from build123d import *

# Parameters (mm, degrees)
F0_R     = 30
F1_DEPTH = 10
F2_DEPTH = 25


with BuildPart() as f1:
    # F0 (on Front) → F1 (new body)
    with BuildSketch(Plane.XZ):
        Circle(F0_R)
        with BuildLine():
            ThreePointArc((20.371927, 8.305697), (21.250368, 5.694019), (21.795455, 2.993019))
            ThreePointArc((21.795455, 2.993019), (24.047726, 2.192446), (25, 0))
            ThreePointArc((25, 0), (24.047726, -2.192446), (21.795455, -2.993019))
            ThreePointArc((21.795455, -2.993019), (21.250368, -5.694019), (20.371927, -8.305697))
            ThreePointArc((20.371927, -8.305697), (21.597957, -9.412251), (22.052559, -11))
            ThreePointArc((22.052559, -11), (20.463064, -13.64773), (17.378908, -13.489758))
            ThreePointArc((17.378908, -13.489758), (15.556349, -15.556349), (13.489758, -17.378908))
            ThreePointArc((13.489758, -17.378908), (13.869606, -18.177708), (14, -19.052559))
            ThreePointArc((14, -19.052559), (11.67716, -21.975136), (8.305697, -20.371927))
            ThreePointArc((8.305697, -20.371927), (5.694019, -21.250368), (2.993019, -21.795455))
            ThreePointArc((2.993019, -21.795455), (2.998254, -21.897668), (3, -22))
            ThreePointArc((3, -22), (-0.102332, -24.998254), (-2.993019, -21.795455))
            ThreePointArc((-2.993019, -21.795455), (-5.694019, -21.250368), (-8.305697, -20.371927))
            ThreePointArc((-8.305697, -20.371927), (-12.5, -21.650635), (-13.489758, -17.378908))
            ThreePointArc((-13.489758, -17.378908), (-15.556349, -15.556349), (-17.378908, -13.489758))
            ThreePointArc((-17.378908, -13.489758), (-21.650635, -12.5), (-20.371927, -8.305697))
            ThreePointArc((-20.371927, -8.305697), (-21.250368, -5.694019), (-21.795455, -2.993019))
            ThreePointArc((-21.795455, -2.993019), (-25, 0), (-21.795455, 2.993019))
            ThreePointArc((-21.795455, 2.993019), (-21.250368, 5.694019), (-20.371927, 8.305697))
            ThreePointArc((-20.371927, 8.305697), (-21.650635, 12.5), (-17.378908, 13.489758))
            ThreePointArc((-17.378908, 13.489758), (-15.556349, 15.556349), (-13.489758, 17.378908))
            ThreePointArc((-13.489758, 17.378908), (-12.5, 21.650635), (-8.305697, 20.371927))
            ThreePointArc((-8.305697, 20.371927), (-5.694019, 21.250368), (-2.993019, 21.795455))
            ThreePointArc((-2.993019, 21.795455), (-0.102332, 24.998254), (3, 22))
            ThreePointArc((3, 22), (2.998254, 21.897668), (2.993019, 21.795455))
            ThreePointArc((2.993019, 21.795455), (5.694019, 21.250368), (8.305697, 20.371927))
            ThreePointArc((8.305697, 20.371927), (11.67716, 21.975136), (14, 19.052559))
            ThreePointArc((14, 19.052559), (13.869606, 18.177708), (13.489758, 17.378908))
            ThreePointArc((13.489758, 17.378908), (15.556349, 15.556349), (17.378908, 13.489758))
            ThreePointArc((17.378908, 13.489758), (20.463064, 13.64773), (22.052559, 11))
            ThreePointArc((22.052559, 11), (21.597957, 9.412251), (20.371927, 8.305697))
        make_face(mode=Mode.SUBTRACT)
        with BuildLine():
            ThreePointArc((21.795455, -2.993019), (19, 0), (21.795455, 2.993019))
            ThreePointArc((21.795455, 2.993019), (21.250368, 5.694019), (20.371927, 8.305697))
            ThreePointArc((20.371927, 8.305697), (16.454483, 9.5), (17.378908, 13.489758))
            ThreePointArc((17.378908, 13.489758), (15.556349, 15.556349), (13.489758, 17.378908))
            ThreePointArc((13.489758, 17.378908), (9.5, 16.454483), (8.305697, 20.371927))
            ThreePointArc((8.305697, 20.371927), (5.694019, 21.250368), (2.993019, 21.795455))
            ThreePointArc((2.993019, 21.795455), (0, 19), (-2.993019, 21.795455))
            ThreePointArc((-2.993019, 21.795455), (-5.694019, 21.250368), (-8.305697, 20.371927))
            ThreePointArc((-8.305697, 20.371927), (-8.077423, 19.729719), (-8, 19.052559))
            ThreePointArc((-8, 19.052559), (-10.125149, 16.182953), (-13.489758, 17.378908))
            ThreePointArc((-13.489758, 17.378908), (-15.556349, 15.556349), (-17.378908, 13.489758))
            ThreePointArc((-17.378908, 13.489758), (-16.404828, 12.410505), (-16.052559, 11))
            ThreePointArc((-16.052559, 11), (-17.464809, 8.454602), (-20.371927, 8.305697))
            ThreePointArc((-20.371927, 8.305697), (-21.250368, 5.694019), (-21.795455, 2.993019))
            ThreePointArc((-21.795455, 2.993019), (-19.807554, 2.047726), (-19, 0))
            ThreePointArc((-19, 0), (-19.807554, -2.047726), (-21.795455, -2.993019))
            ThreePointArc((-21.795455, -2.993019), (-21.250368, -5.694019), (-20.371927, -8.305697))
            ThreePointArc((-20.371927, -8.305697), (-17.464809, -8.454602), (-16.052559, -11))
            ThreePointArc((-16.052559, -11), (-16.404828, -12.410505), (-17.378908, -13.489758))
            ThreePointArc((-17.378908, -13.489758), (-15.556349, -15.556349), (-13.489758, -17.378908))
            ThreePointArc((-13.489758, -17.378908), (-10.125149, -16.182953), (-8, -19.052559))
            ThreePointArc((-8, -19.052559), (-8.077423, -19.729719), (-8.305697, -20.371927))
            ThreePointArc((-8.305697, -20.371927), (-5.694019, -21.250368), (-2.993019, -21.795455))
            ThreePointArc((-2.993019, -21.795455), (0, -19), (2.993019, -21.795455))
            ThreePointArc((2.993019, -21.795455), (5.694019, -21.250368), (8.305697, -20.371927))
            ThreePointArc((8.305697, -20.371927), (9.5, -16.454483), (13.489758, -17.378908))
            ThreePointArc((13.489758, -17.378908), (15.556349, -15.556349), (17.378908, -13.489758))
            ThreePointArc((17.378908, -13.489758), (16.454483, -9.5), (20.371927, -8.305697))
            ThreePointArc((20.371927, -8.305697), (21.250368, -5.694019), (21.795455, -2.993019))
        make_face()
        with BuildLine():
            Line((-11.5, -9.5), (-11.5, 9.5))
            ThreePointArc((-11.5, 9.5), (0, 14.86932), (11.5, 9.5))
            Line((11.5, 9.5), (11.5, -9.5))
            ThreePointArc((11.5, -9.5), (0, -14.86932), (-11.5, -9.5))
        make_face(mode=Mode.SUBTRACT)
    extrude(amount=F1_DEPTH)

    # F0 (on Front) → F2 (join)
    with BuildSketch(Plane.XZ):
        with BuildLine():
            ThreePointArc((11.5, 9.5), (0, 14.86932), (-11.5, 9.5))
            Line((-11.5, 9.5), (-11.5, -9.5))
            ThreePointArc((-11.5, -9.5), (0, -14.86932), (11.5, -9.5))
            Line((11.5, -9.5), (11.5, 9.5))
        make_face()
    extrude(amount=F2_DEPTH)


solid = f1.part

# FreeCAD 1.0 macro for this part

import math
import FreeCAD as App
import Part
import Sketcher

doc = App.newDocument("Part")
body = doc.addObject("PartDesign::Body", "Body")

sketch1 = body.newObject("Sketcher::SketchObject", "Sketch")
sketch1.AttachmentSupport = (doc.getObject("XZ_Plane"), [""])
sketch1.MapMode = "FlatFace"
sketch1.addGeometry([
    Part.Circle(App.Vector(0, 0, 0), App.Vector(0, 0, 1), 30),
    Part.ArcOfCircle(Part.Circle(App.Vector(-11, -19.05, 0), App.Vector(0, 0, 1), 3), math.radians(146), math.radians(334)),
    Part.ArcOfCircle(Part.Circle(App.Vector(-11, -19.05, 0), App.Vector(0, 0, 1), 3), math.radians(0), math.radians(146)),
    Part.ArcOfCircle(Part.Circle(App.Vector(-11, -19.05, 0), App.Vector(0, 0, 1), 3), math.radians(-26), math.radians(0)),
    Part.ArcOfCircle(Part.Circle(App.Vector(0, -22, 0), App.Vector(0, 0, 1), 3), math.radians(176), math.radians(360)),
    Part.ArcOfCircle(Part.Circle(App.Vector(0, -22, 0), App.Vector(0, 0, 1), 3), math.radians(4), math.radians(176)),
    Part.ArcOfCircle(Part.Circle(App.Vector(0, -22, 0), App.Vector(0, 0, 1), 3), math.radians(0), math.radians(3.91)),
    Part.ArcOfCircle(Part.Circle(App.Vector(-19.05, -11, 0), App.Vector(0, 0, 1), 3), math.radians(116), math.radians(304)),
    Part.ArcOfCircle(Part.Circle(App.Vector(-19.05, -11, 0), App.Vector(0, 0, 1), 3), math.radians(0), math.radians(116)),
    Part.ArcOfCircle(Part.Circle(App.Vector(-19.05, -11, 0), App.Vector(0, 0, 1), 3), math.radians(-56), math.radians(0)),
    Part.ArcOfCircle(Part.Circle(App.Vector(11, -19.05, 0), App.Vector(0, 0, 1), 3), math.radians(-154), math.radians(0)),
    Part.ArcOfCircle(Part.Circle(App.Vector(11, -19.05, 0), App.Vector(0, 0, 1), 3), math.radians(34), math.radians(206)),
    Part.ArcOfCircle(Part.Circle(App.Vector(11, -19.05, 0), App.Vector(0, 0, 1), 3), math.radians(0), math.radians(34)),
    Part.ArcOfCircle(Part.Circle(App.Vector(19.05, -11, 0), App.Vector(0, 0, 1), 3), math.radians(-124), math.radians(0)),
    Part.ArcOfCircle(Part.Circle(App.Vector(19.05, -11, 0), App.Vector(0, 0, 1), 3), math.radians(64), math.radians(236)),
    Part.ArcOfCircle(Part.Circle(App.Vector(19.05, -11, 0), App.Vector(0, 0, 1), 3), math.radians(0), math.radians(64)),
    Part.ArcOfCircle(Part.Circle(App.Vector(-22, 0, 0), App.Vector(0, 0, 1), 3), math.radians(86), math.radians(274)),
    Part.ArcOfCircle(Part.Circle(App.Vector(-22, 0, 0), App.Vector(0, 0, 1), 3), math.radians(0), math.radians(86)),
    Part.ArcOfCircle(Part.Circle(App.Vector(-22, 0, 0), App.Vector(0, 0, 1), 3), math.radians(-86), math.radians(0)),
    Part.ArcOfCircle(Part.Circle(App.Vector(-19.05, 11, 0), App.Vector(0, 0, 1), 3), math.radians(56), math.radians(244)),
    Part.ArcOfCircle(Part.Circle(App.Vector(-19.05, 11, 0), App.Vector(0, 0, 1), 3), math.radians(0), math.radians(56)),
    Part.ArcOfCircle(Part.Circle(App.Vector(-19.05, 11, 0), App.Vector(0, 0, 1), 3), math.radians(-116), math.radians(0)),
    Part.ArcOfCircle(Part.Circle(App.Vector(0, 0.13, 0), App.Vector(0, 0, 1), 15), math.radians(-140), math.radians(-40)),
    Part.LineSegment(App.Vector(-11.5, -9.5, 0), App.Vector(-11.5, 9.5, 0)),
    Part.ArcOfCircle(Part.Circle(App.Vector(0, -0.13, 0), App.Vector(0, 0, 1), 15), math.radians(40), math.radians(140)),
    Part.LineSegment(App.Vector(11.5, 9.5, 0), App.Vector(11.5, -9.5, 0)),
    Part.ArcOfCircle(Part.Circle(App.Vector(-11, 19.05, 0), App.Vector(0, 0, 1), 3), math.radians(26), math.radians(214)),
    Part.ArcOfCircle(Part.Circle(App.Vector(-11, 19.05, 0), App.Vector(0, 0, 1), 3), math.radians(0), math.radians(26)),
    Part.ArcOfCircle(Part.Circle(App.Vector(-11, 19.05, 0), App.Vector(0, 0, 1), 3), math.radians(-146), math.radians(0)),
    Part.ArcOfCircle(Part.Circle(App.Vector(0, 22, 0), App.Vector(0, 0, 1), 3), math.radians(-3.91), math.radians(0)),
    Part.ArcOfCircle(Part.Circle(App.Vector(0, 22, 0), App.Vector(0, 0, 1), 3), math.radians(-176), math.radians(-4)),
    Part.ArcOfCircle(Part.Circle(App.Vector(0, 22, 0), App.Vector(0, 0, 1), 3), math.radians(0), math.radians(184)),
    Part.ArcOfCircle(Part.Circle(App.Vector(22, 0, 0), App.Vector(0, 0, 1), 3), math.radians(-94), math.radians(0)),
    Part.ArcOfCircle(Part.Circle(App.Vector(22, 0, 0), App.Vector(0, 0, 1), 3), math.radians(94), math.radians(266)),
    Part.ArcOfCircle(Part.Circle(App.Vector(22, 0, 0), App.Vector(0, 0, 1), 3), math.radians(0), math.radians(94)),
    Part.ArcOfCircle(Part.Circle(App.Vector(19.05, 11, 0), App.Vector(0, 0, 1), 3), math.radians(-64), math.radians(0)),
    Part.ArcOfCircle(Part.Circle(App.Vector(19.05, 11, 0), App.Vector(0, 0, 1), 3), math.radians(124), math.radians(296)),
    Part.ArcOfCircle(Part.Circle(App.Vector(19.05, 11, 0), App.Vector(0, 0, 1), 3), math.radians(0), math.radians(124)),
    Part.ArcOfCircle(Part.Circle(App.Vector(11, 19.05, 0), App.Vector(0, 0, 1), 3), math.radians(-34), math.radians(0)),
    Part.ArcOfCircle(Part.Circle(App.Vector(11, 19.05, 0), App.Vector(0, 0, 1), 3), math.radians(154), math.radians(326)),
    Part.ArcOfCircle(Part.Circle(App.Vector(11, 19.05, 0), App.Vector(0, 0, 1), 3), math.radians(0), math.radians(154)),
], False)
sketch1.addConstraint([
    Sketcher.Constraint("Tangent", 1, 1, 2, 2),
    Sketcher.Constraint("Tangent", 2, 1, 3, 2),
    Sketcher.Constraint("Tangent", 3, 1, 1, 2),
    Sketcher.Constraint("Tangent", 4, 1, 5, 2),
    Sketcher.Constraint("Coincident", 5, 1, 6, 2),
    Sketcher.Constraint("Coincident", 6, 1, 4, 2),
    Sketcher.Constraint("Tangent", 7, 1, 8, 2),
    Sketcher.Constraint("Tangent", 8, 1, 9, 2),
    Sketcher.Constraint("Tangent", 9, 1, 7, 2),
    Sketcher.Constraint("Tangent", 10, 1, 11, 2),
    Sketcher.Constraint("Tangent", 11, 1, 12, 2),
    Sketcher.Constraint("Tangent", 12, 1, 10, 2),
    Sketcher.Constraint("Tangent", 13, 1, 14, 2),
    Sketcher.Constraint("Tangent", 14, 1, 15, 2),
    Sketcher.Constraint("Tangent", 15, 1, 13, 2),
    Sketcher.Constraint("Tangent", 16, 1, 17, 2),
    Sketcher.Constraint("Tangent", 17, 1, 18, 2),
    Sketcher.Constraint("Tangent", 18, 1, 16, 2),
    Sketcher.Constraint("Tangent", 19, 1, 20, 2),
    Sketcher.Constraint("Tangent", 20, 1, 21, 2),
    Sketcher.Constraint("Tangent", 21, 1, 19, 2),
    Sketcher.Constraint("Coincident", 22, 1, 23, 1),
    Sketcher.Constraint("Coincident", 23, 2, 24, 2),
    Sketcher.Constraint("Coincident", 24, 1, 25, 1),
    Sketcher.Constraint("Coincident", 25, 2, 22, 2),
    Sketcher.Constraint("Tangent", 26, 1, 27, 2),
    Sketcher.Constraint("Tangent", 27, 1, 28, 2),
    Sketcher.Constraint("Tangent", 28, 1, 26, 2),
    Sketcher.Constraint("Coincident", 29, 1, 30, 2),
    Sketcher.Constraint("Tangent", 30, 1, 31, 2),
    Sketcher.Constraint("Coincident", 31, 1, 29, 2),
    Sketcher.Constraint("Tangent", 32, 1, 33, 2),
    Sketcher.Constraint("Tangent", 33, 1, 34, 2),
    Sketcher.Constraint("Tangent", 34, 1, 32, 2),
    Sketcher.Constraint("Tangent", 35, 1, 36, 2),
    Sketcher.Constraint("Tangent", 36, 1, 37, 2),
    Sketcher.Constraint("Tangent", 37, 1, 35, 2),
    Sketcher.Constraint("Tangent", 38, 1, 39, 2),
    Sketcher.Constraint("Tangent", 39, 1, 40, 2),
    Sketcher.Constraint("Tangent", 40, 1, 38, 2),
    Sketcher.Constraint("Vertical", 23),
    Sketcher.Constraint("Vertical", 25),
    Sketcher.Constraint("Coincident", 0, 3, -1, 1),
    Sketcher.Constraint("Equal", 2, 4),
    Sketcher.Constraint("Equal", 4, 5),
    Sketcher.Constraint("Equal", 5, 7),
    Sketcher.Constraint("Equal", 8, 10),
    Sketcher.Constraint("Equal", 11, 13),
    Sketcher.Constraint("Equal", 14, 16),
    Sketcher.Constraint("Equal", 18, 19),
    Sketcher.Constraint("Equal", 22, 24),
    Sketcher.Constraint("Equal", 21, 26),
    Sketcher.Constraint("Equal", 6, 29),
    Sketcher.Constraint("Equal", 28, 30),
    Sketcher.Constraint("Equal", 30, 31),
    Sketcher.Constraint("Equal", 31, 32),
    Sketcher.Constraint("Equal", 15, 35),
    Sketcher.Constraint("Equal", 12, 38),
    Sketcher.Constraint("Symmetric", 13, 3, 19, 3, -1, 1),
    Sketcher.Constraint("Symmetric", 22, 3, 24, 3, -1, 1),
    Sketcher.Constraint("Symmetric", 10, 3, 26, 3, -1, 1),
    Sketcher.Constraint("Symmetric", 4, 3, 30, 3, -1, 1),
    Sketcher.Constraint("Symmetric", 16, 3, 32, 3, -1, 1),
    Sketcher.Constraint("Symmetric", 7, 3, 35, 3, -1, 1),
    Sketcher.Constraint("Symmetric", 1, 3, 38, 3, -1, 1),
    Sketcher.Constraint("Symmetric", 1, 3, 10, 3, -2),
    Sketcher.Constraint("Symmetric", 7, 3, 13, 3, -2),
    Sketcher.Constraint("Symmetric", 4, 1, 5, 1, -2),
    Sketcher.Constraint("Symmetric", 23, 2, 24, 1, -2),
    Sketcher.Constraint("Symmetric", 18, 1, 32, 1, -2),
    Sketcher.Constraint("PointOnObject", 17, 1, -1),
    Sketcher.Constraint("PointOnObject", 34, 1, -1),
    Sketcher.Constraint("Horizontal", 11, 3, 2, 1),
    Sketcher.Constraint("Horizontal", 5, 3, 6, 1),
    Sketcher.Constraint("Horizontal", 15, 3, 8, 1),
    Sketcher.Constraint("Horizontal", 3, 1, 10, 1),
    Sketcher.Constraint("Horizontal", 1, 1, 11, 1),
    Sketcher.Constraint("Horizontal", 2, 1, 12, 1),
    Sketcher.Constraint("Horizontal", 9, 1, 13, 1),
    Sketcher.Constraint("Horizontal", 7, 1, 14, 1),
    Sketcher.Constraint("Horizontal", 8, 1, 15, 1),
    Sketcher.Constraint("Horizontal", 37, 3, 20, 1),
    Sketcher.Constraint("Horizontal", 40, 3, 27, 1),
    Sketcher.Constraint("Horizontal", 29, 1, 30, 1),
    Sketcher.Constraint("Horizontal", 30, 3, 31, 1),
    Sketcher.Constraint("Horizontal", 16, 1, 33, 1),
    Sketcher.Constraint("Horizontal", 21, 1, 35, 1),
    Sketcher.Constraint("Horizontal", 19, 1, 36, 1),
    Sketcher.Constraint("Horizontal", 20, 1, 37, 1),
    Sketcher.Constraint("Horizontal", 28, 1, 38, 1),
    Sketcher.Constraint("Horizontal", 26, 1, 39, 1),
    Sketcher.Constraint("Horizontal", 27, 1, 40, 1),
    Sketcher.Constraint("Vertical", 16, 1, 18, 1),
    Sketcher.Constraint("Vertical", 9, 1, 19, 1),
    Sketcher.Constraint("Vertical", 7, 1, 21, 1),
    Sketcher.Constraint("Vertical", 3, 1, 26, 1),
    Sketcher.Constraint("Vertical", 1, 1, 28, 1),
    Sketcher.Constraint("Vertical", 5, 1, 29, 1),
    Sketcher.Constraint("Diameter", 0, 60.0),
    Sketcher.Constraint("Radius", 1, 3.0),
    Sketcher.Constraint("Radius", 22, 15.0),
    Sketcher.Constraint("DistanceY", 23, 1, 23, 2, 19.0),
    Sketcher.Constraint("DistanceX", 1, 3, -1, 1, 11.0),
    Sketcher.Constraint("DistanceY", 4, 3, -1, 1, 22.0),
    Sketcher.Constraint("DistanceY", 7, 3, -1, 1, 11.0),
    Sketcher.Constraint("DistanceX", 16, 3, -1, 1, 22.0),
    Sketcher.Constraint("DistanceX", 22, 1, -1, 1, 11.5),
    Sketcher.Constraint("Radius", 6, 3.000518),
    Sketcher.Constraint("DistanceY", 1, 3, -1, 1, 19.052559),
    Sketcher.Constraint("DistanceX", 7, 3, -1, 1, 19.052559),
    Sketcher.Constraint("DistanceX", 1, 1, -1, 1, 13.489758),
    Sketcher.Constraint("DistanceX", 4, 1, -1, 1, 2.993019),
    Sketcher.Constraint("DistanceX", 9, 1, -1, 1, 17.378908),
    Sketcher.Constraint("DistanceY", -1, 1, 16, 1, 2.993019),
    Sketcher.Constraint("DistanceX", 3, 1, -1, 1, 8.305697),
    Sketcher.Constraint("DistanceX", 7, 1, -1, 1, 20.371927),
])
pad1 = body.newObject("PartDesign::Pad", "Pad")
pad1.Profile = sketch1
pad1.Length = 10

sketch2 = body.newObject("Sketcher::SketchObject", "Sketch001")
sketch2.AttachmentSupport = (doc.getObject("XZ_Plane"), [""])
sketch2.MapMode = "FlatFace"
sketch2.addGeometry([
    Part.ArcOfCircle(Part.Circle(App.Vector(0, -0.13068, 0), App.Vector(0, 0, 1), 15), math.radians(39.944504), math.radians(140.055496)),
    Part.LineSegment(App.Vector(-11.5, 9.5, 0), App.Vector(-11.5, -9.5, 0)),
    Part.ArcOfCircle(Part.Circle(App.Vector(0, 0.13068, 0), App.Vector(0, 0, 1), 15), math.radians(-140.055496), math.radians(-39.944504)),
    Part.LineSegment(App.Vector(11.5, -9.5, 0), App.Vector(11.5, 9.5, 0)),
], False)
sketch2.addConstraint([
    Sketcher.Constraint("Coincident", 0, 2, 1, 1),
    Sketcher.Constraint("Coincident", 1, 2, 2, 1),
    Sketcher.Constraint("Coincident", 2, 2, 3, 1),
    Sketcher.Constraint("Coincident", 3, 2, 0, 1),
    Sketcher.Constraint("Vertical", 1),
    Sketcher.Constraint("Vertical", 3),
    Sketcher.Constraint("Equal", 0, 2),
    Sketcher.Constraint("Symmetric", 0, 3, 2, 3, -1, 1),
    Sketcher.Constraint("Symmetric", 1, 2, 2, 2, -2),
    Sketcher.Constraint("Radius", 0, 15.0),
    Sketcher.Constraint("DistanceY", 1, 2, 1, 1, 19.0),
    Sketcher.Constraint("DistanceX", 1, 2, 2, 2, 23.0),
])
pad2 = body.newObject("PartDesign::Pad", "Pad001")
pad2.Profile = sketch2
pad2.Length = 25

doc.recompute()
